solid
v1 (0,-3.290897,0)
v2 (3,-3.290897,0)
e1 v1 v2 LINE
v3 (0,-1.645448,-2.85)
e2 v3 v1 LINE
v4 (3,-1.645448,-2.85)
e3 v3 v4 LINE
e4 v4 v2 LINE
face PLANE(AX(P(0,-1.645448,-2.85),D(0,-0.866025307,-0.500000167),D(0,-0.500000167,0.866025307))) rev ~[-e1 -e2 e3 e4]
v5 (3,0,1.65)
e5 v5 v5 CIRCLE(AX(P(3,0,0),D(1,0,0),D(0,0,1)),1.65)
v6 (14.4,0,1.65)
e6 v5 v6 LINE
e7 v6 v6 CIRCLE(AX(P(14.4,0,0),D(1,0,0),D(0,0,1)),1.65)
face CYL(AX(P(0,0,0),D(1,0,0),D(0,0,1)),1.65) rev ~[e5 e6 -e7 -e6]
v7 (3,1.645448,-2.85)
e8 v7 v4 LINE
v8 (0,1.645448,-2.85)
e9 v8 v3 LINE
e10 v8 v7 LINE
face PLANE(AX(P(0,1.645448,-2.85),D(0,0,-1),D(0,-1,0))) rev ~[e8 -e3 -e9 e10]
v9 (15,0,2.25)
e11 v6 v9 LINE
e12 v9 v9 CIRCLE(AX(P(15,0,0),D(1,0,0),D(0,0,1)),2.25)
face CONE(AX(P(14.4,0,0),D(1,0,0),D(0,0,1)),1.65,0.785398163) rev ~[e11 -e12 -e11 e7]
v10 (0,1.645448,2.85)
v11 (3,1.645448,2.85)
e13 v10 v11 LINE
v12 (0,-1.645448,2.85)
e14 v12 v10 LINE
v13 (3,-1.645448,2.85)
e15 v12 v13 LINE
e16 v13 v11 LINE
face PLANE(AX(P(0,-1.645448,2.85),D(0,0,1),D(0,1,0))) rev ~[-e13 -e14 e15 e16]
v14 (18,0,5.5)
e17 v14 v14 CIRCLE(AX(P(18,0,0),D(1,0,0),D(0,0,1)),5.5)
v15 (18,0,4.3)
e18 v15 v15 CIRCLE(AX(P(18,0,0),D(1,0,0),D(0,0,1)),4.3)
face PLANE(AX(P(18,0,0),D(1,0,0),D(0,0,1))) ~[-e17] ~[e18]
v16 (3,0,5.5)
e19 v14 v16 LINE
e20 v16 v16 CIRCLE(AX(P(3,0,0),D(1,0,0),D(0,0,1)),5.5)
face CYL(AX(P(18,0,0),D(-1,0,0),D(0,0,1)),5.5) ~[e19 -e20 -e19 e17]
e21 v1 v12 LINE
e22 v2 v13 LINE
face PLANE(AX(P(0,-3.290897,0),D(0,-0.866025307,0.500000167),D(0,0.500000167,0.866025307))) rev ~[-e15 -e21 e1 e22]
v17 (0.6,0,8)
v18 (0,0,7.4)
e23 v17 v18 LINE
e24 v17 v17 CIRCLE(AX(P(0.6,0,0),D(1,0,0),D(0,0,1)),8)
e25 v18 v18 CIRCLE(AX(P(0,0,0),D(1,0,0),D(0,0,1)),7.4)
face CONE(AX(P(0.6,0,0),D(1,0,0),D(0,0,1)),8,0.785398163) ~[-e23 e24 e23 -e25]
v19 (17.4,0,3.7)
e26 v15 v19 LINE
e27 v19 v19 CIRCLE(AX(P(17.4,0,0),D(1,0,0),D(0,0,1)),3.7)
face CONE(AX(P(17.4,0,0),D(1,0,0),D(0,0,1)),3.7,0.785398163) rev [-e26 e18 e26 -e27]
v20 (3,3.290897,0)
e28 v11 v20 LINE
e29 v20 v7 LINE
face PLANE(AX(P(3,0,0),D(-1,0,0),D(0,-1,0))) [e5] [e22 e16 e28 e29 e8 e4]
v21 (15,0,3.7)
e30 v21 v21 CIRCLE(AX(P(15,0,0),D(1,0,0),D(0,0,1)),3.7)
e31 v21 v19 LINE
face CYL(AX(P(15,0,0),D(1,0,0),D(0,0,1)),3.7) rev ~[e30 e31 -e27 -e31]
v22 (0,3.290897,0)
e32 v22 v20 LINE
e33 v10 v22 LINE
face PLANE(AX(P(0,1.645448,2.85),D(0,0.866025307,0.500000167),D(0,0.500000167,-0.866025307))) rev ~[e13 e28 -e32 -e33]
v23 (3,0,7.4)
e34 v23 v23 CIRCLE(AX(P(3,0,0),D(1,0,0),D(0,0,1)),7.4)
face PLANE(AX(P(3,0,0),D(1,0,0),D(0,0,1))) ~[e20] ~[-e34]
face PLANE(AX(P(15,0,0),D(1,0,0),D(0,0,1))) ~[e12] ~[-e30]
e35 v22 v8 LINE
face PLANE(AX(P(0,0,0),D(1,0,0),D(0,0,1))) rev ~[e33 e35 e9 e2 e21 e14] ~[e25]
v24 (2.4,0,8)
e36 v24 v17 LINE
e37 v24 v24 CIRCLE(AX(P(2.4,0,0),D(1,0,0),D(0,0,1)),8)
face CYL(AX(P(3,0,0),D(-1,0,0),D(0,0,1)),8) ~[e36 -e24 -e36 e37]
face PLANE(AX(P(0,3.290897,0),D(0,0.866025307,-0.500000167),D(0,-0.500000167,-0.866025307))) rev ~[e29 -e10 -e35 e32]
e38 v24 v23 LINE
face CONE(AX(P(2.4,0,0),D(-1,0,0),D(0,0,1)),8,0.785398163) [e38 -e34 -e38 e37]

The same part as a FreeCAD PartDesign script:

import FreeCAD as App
import Part
import Sketcher
Q = App.Units.Quantity


def edges_at(feature, points):
    """Names of the edges that pass closest to the given points."""
    edges = feature.Shape.Edges
    near = lambda p: min(range(len(edges)), key=lambda i: edges[i].distToShape(Part.Vertex(*p))[0])
    return sorted({f"Edge{near(p) + 1}" for p in points})

doc = App.newDocument("Part")
body = doc.addObject("PartDesign::Body", "Body")

# Sketch on XZ plane
sketch1 = body.newObject("Sketcher::SketchObject", "Sketch")
sketch1.AttachmentSupport = (doc.getObject("XZ_Plane"), [""])
sketch1.MapMode = "FlatFace"
sketch1.addGeometry([
    Part.LineSegment(App.Vector(3, 8, 0), App.Vector(0, 8, 0)),  # 0
    Part.LineSegment(App.Vector(0, 8, 0), App.Vector(0, 1.6, 0)),  # 1
    Part.LineSegment(App.Vector(0, 1.6, 0), App.Vector(15, 1.6, 0)),  # 2
    Part.LineSegment(App.Vector(15, 1.6, 0), App.Vector(15, 3.7, 0)),  # 3
    Part.LineSegment(App.Vector(15, 3.7, 0), App.Vector(18, 3.7, 0)),  # 4
    Part.LineSegment(App.Vector(18, 3.7, 0), App.Vector(18, 5.5, 0)),  # 5
    Part.LineSegment(App.Vector(18, 5.5, 0), App.Vector(3, 5.5, 0)),  # 6
    Part.LineSegment(App.Vector(3, 5.5, 0), App.Vector(3, 8, 0)),  # 7
], False)
sketch1.addConstraint([
    Sketcher.Constraint("Coincident", 0, 2, 1, 1),
    Sketcher.Constraint("Coincident", 1, 2, 2, 1),
    Sketcher.Constraint("Coincident", 2, 2, 3, 1),
    Sketcher.Constraint("Coincident", 3, 2, 4, 1),
    Sketcher.Constraint("Coincident", 4, 2, 5, 1),
    Sketcher.Constraint("Coincident", 5, 2, 6, 1),
    Sketcher.Constraint("Coincident", 6, 2, 7, 1),
    Sketcher.Constraint("Coincident", 7, 2, 0, 1),
    Sketcher.Constraint("Horizontal", 0),
    Sketcher.Constraint("Vertical", 1),
    Sketcher.Constraint("Horizontal", 2),
    Sketcher.Constraint("Vertical", 3),
    Sketcher.Constraint("Horizontal", 4),
    Sketcher.Constraint("Vertical", 5),
    Sketcher.Constraint("Horizontal", 6),
    Sketcher.Constraint("Vertical", 7),
    Sketcher.Constraint("PointOnObject", 0, 2, -2),
    Sketcher.Constraint("Equal", 0, 4),
    Sketcher.Constraint("DistanceX", 0, 2, 0, 1, Q("3 mm")),
    Sketcher.Constraint("DistanceX", 2, 1, 2, 2, Q("15 mm")),
    Sketcher.Constraint("DistanceY", 5, 1, 5, 2, Q("1.8 mm")),
    Sketcher.Constraint("DistanceY", 7, 1, 7, 2, Q("2.5 mm")),
    Sketcher.Constraint("DistanceY", -1, 1, 0, 2, Q("8 mm")),
    Sketcher.Constraint("DistanceY", 1, 2, 1, 1, Q("6.35 mm")),
])
revolution = body.newObject("PartDesign::Revolution", "Revolution")
revolution.Profile = sketch1
revolution.ReferenceAxis = (sketch1, ["H_Axis"])
revolution.Angle = 360

# Sketch on YZ plane
sketch2 = body.newObject("Sketcher::SketchObject", "Sketch001")
sketch2.AttachmentSupport = (doc.getObject("YZ_Plane"), [""])
sketch2.MapMode = "FlatFace"
sketch2.addGeometry([
    Part.LineSegment(App.Vector(1.6, -2.9, 0), App.Vector(-1.6, -2.9, 0)),  # 0
    Part.LineSegment(App.Vector(-1.6, -2.9, 0), App.Vector(-3.3, 0, 0)),  # 1
    Part.LineSegment(App.Vector(-3.3, 0, 0), App.Vector(-1.6, 2.9, 0)),  # 2
    Part.LineSegment(App.Vector(-1.6, 2.9, 0), App.Vector(1.6, 2.9, 0)),  # 3
    Part.LineSegment(App.Vector(1.6, 2.9, 0), App.Vector(3.3, 0, 0)),  # 4
    Part.LineSegment(App.Vector(3.3, 0, 0), App.Vector(1.6, -2.9, 0)),  # 5
], False)
sketch2.addConstraint([
    Sketcher.Constraint("Coincident", 0, 2, 1, 1),
    Sketcher.Constraint("Coincident", 1, 2, 2, 1),
    Sketcher.Constraint("Coincident", 2, 2, 3, 1),
    Sketcher.Constraint("Coincident", 3, 2, 4, 1),
    Sketcher.Constraint("Coincident", 4, 2, 5, 1),
    Sketcher.Constraint("Coincident", 5, 2, 0, 1),
    Sketcher.Constraint("Horizontal", 0),
    Sketcher.Constraint("Horizontal", 3),
    Sketcher.Constraint("Symmetric", 0, 2, 3, 2, -1, 1),
    Sketcher.Constraint("Symmetric", 1, 2, 4, 2, -1, 1),
    Sketcher.Constraint("PointOnObject", 1, 2, -1),
    Sketcher.Constraint("Parallel", 2, 5),
    Sketcher.Constraint("Vertical", 0, 2, 2, 2),
    Sketcher.Constraint("Angle", 1, Q("120.000011 deg")),
    Sketcher.Constraint("DistanceY", 0, 2, 2, 2, Q("5.7 mm")),
    Sketcher.Constraint("DistanceX", 0, 2, 0, 1, Q("3.290896 mm")),
])
pocket1 = body.newObject("PartDesign::Pocket", "Pocket")
pocket1.Profile = sketch2
pocket1.Length = 3
pocket1.Reversed = True
doc.recompute()

chamfer = body.newObject("PartDesign::Chamfer", "Chamfer")
chamfer.Base = (pocket1, edges_at(pocket1, [
    (0, 0, -8),
    (18, 0, -3.7),
    (15, 0, -1.65),
    (3, 0, -8),
]))
chamfer.Size = 0.6

doc.recompute()
